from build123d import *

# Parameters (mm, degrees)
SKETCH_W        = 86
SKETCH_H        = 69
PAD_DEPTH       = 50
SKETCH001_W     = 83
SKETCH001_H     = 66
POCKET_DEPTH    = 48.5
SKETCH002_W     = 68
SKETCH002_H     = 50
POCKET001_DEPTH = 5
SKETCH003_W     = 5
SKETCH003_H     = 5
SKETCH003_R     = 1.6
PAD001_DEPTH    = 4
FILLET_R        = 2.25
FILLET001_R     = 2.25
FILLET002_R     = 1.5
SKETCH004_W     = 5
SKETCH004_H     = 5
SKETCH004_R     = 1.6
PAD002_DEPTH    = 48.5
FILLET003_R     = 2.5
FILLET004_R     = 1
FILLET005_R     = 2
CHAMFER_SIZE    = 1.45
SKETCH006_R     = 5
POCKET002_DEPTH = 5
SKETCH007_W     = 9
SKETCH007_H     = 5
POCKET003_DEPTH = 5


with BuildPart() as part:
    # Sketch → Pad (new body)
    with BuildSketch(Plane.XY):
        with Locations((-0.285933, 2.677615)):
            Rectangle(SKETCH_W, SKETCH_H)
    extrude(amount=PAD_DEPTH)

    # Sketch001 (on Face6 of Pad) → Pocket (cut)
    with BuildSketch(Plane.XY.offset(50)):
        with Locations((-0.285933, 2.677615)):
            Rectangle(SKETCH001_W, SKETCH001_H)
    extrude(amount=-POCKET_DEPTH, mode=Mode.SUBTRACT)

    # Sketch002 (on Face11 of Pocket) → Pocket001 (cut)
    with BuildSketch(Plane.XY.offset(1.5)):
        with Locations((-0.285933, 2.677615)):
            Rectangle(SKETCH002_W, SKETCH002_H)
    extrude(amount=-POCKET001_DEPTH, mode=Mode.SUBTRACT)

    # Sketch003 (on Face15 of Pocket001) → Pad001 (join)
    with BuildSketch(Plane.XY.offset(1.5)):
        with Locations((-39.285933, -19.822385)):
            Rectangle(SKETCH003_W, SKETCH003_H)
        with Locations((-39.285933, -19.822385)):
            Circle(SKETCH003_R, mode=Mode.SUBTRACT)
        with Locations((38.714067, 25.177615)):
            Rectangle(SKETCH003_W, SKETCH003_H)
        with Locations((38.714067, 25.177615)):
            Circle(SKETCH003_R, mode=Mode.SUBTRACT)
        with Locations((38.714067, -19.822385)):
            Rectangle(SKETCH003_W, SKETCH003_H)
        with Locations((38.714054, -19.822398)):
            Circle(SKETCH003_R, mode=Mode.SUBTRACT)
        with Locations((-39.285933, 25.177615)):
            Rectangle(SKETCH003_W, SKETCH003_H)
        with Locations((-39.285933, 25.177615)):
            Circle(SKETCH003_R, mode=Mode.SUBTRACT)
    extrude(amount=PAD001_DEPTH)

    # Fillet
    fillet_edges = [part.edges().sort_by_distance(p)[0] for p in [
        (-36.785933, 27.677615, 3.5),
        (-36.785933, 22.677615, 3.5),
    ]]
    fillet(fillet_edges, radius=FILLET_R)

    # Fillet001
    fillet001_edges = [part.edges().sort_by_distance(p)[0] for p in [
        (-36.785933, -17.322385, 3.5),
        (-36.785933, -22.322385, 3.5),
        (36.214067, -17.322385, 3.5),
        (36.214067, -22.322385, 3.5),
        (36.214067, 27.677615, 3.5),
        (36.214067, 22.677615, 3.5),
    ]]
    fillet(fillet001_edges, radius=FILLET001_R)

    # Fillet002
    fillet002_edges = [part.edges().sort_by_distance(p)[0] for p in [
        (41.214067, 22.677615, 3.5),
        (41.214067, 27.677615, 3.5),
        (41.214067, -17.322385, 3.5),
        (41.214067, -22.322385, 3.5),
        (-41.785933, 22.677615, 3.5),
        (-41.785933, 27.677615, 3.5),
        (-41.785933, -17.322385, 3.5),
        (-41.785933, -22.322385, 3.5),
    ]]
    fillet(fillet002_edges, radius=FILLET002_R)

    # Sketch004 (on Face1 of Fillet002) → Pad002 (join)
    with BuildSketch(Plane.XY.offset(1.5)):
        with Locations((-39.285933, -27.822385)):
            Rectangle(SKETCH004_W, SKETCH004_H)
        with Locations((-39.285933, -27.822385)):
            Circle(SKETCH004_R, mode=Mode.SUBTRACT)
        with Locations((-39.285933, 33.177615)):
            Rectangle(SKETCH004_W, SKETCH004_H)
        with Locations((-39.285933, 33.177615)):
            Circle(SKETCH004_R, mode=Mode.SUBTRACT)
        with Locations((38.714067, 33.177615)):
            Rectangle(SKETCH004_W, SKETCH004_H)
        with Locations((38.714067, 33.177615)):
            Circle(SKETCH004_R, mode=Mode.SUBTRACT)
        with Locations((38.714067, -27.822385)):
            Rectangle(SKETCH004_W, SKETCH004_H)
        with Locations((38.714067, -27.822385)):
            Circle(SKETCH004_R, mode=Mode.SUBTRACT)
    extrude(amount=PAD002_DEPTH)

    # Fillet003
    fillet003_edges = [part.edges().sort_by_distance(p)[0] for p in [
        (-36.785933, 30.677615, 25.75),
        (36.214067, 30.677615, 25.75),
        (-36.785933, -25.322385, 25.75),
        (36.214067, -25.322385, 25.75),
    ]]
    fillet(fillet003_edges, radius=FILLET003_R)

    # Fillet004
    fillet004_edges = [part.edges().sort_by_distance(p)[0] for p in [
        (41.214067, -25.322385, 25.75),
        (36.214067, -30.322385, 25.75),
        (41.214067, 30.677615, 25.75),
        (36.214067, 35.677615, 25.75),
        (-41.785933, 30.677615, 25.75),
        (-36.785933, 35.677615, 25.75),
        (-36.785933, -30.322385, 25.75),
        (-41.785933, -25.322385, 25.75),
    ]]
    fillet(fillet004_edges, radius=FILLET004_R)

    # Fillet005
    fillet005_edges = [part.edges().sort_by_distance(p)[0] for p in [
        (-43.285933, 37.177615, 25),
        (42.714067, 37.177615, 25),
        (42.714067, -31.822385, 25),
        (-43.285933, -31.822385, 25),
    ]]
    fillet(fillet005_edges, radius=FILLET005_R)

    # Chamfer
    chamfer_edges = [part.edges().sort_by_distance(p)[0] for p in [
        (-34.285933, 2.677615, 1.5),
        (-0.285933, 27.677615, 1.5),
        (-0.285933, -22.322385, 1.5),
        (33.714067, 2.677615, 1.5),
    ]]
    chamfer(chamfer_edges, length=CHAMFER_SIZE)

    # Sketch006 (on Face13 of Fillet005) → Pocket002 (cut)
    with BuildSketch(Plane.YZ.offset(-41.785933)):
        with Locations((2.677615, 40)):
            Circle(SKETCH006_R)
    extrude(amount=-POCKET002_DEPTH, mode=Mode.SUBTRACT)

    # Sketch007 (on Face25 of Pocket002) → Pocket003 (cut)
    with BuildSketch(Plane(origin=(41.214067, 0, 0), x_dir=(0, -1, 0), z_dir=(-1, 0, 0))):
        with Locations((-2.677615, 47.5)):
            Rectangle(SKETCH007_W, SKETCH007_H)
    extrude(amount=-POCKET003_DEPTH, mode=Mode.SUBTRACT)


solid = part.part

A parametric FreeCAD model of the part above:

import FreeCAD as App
import Part
import Sketcher
from FreeCAD import Vector


def edges_at(feature, points):
    """Names of the edges that pass closest to the given points."""
    edges = feature.Shape.Edges
    near = lambda p: min(range(len(edges)), key=lambda i: edges[i].distToShape(Part.Vertex(*p))[0])
    return sorted({f"Edge{near(p) + 1}" for p in points})

doc = App.newDocument("Part")
body = doc.addObject("PartDesign::Body", "Body")

# Sketch on XY plane
sketch1 = body.newObject("Sketcher::SketchObject", "Sketch")
sketch1.AttachmentSupport = (doc.getObject("XY_Plane"), [""])
sketch1.MapMode = "FlatFace"
sketch1.addGeometry([
    Part.LineSegment(Vector(-43, 37, 0), Vector(-43, -32, 0)),
    Part.LineSegment(Vector(-43, -32, 0), Vector(43, -32, 0)),
    Part.LineSegment(Vector(43, -32, 0), Vector(43, 37, 0)),
    Part.LineSegment(Vector(43, 37, 0), Vector(-43, 37, 0)),
], False)
sketch1.addConstraint([
    Sketcher.Constraint("Coincident", 0, 2, 1, 1),
    Sketcher.Constraint("Coincident", 1, 2, 2, 1),
    Sketcher.Constraint("Coincident", 2, 2, 3, 1),
    Sketcher.Constraint("Coincident", 3, 2, 0, 1),
    Sketcher.Constraint("Vertical", 0),
    Sketcher.Constraint("Horizontal", 1),
    Sketcher.Constraint("Vertical", 2),
    Sketcher.Constraint("Horizontal", 3),
    Sketcher.Constraint("DistanceX", 1, 1, 1, 2, 86.0),
    Sketcher.Constraint("DistanceY", 0, 2, 0, 1, 69.0),
    Sketcher.Constraint("DistanceX", 0, 2, -1, 1, 43.285933),
    Sketcher.Constraint("DistanceY", 0, 2, -1, 1, 31.822385),
])
pad1 = body.newObject("PartDesign::Pad", "Pad")
pad1.Profile = sketch1
pad1.Length = 50

# Sketch on XY plane
sketch2 = body.newObject("Sketcher::SketchObject", "Sketch001")
sketch2.AttachmentSupport = (doc.getObject("XY_Plane"), [""])
sketch2.MapMode = "FlatFace"
sketch2.AttachmentOffset = App.Placement(Vector(0, 0, 50), App.Rotation())
sketch2.addGeometry([
    Part.LineSegment(Vector(-42, 36, 0), Vector(-42, -30, 0)),
    Part.LineSegment(Vector(-42, -30, 0), Vector(41, -30, 0)),
    Part.LineSegment(Vector(41, -30, 0), Vector(41, 36, 0)),
    Part.LineSegment(Vector(41, 36, 0), Vector(-42, 36, 0)),
], False)
sketch2.addConstraint([
    Sketcher.Constraint("Coincident", 0, 2, 1, 1),
    Sketcher.Constraint("Coincident", 1, 2, 2, 1),
    Sketcher.Constraint("Coincident", 2, 2, 3, 1),
    Sketcher.Constraint("Coincident", 3, 2, 0, 1),
    Sketcher.Constraint("Vertical", 0),
    Sketcher.Constraint("Horizontal", 1),
    Sketcher.Constraint("Vertical", 2),
    Sketcher.Constraint("Horizontal", 3),
    Sketcher.Constraint("DistanceX", 1, 1, 1, 2, 83.0),
    Sketcher.Constraint("DistanceY", 0, 2, 0, 1, 66.0),
    Sketcher.Constraint("DistanceX", 0, 2, -1, 1, 41.785933),
    Sketcher.Constraint("DistanceY", 0, 2, -1, 1, 30.322385),
])
pocket1 = body.newObject("PartDesign::Pocket", "Pocket")
pocket1.Profile = sketch2
pocket1.Length = 48.5

# Sketch on XY plane
sketch3 = body.newObject("Sketcher::SketchObject", "Sketch002")
sketch3.AttachmentSupport = (doc.getObject("XY_Plane"), [""])
sketch3.MapMode = "FlatFace"
sketch3.AttachmentOffset = App.Placement(Vector(0, 0, 1.5), App.Rotation())
sketch3.addGeometry([
    Part.LineSegment(Vector(-34, 28, 0), Vector(-34, -22, 0)),
    Part.LineSegment(Vector(-34, -22, 0), Vector(34, -22, 0)),
    Part.LineSegment(Vector(34, -22, 0), Vector(34, 28, 0)),
    Part.LineSegment(Vector(34, 28, 0), Vector(-34, 28, 0)),
], False)
sketch3.addConstraint([
    Sketcher.Constraint("Coincident", 0, 2, 1, 1),
    Sketcher.Constraint("Coincident", 1, 2, 2, 1),
    Sketcher.Constraint("Coincident", 2, 2, 3, 1),
    Sketcher.Constraint("Coincident", 3, 2, 0, 1),
    Sketcher.Constraint("Vertical", 0),
    Sketcher.Constraint("Horizontal", 1),
    Sketcher.Constraint("Vertical", 2),
    Sketcher.Constraint("Horizontal", 3),
    Sketcher.Constraint("DistanceX", 1, 1, 1, 2, 68.0),
    Sketcher.Constraint("DistanceY", 0, 2, 0, 1, 50.0),
    Sketcher.Constraint("DistanceX", 0, 2, -1, 1, 34.285933),
    Sketcher.Constraint("DistanceY", 0, 2, -1, 1, 22.322385),
])
pocket2 = body.newObject("PartDesign::Pocket", "Pocket001")
pocket2.Profile = sketch3
pocket2.Length = 5

# Sketch on XY plane
sketch4 = body.newObject("Sketcher::SketchObject", "Sketch003")
sketch4.AttachmentSupport = (doc.getObject("XY_Plane"), [""])
sketch4.MapMode = "FlatFace"
sketch4.AttachmentOffset = App.Placement(Vector(0, 0, 1.5), App.Rotation())
sketch4.addGeometry([
    Part.LineSegment(Vector(-41.8, -17.3, 0), Vector(-41.8, -22.3, 0)),  # 0
    Part.LineSegment(Vector(-41.8, -22.3, 0), Vector(-36.8, -22.3, 0)),  # 1
    Part.LineSegment(Vector(-36.8, -22.3, 0), Vector(-36.8, -17.3, 0)),  # 2
    Part.LineSegment(Vector(-36.8, -17.3, 0), Vector(-41.8, -17.3, 0)),  # 3
    Part.Circle(Vector(-39.3, -19.8, 0), Vector(0, 0, 1), 1.6),  # 4
    Part.LineSegment(Vector(36.2, 27.7, 0), Vector(36.2, 22.7, 0)),  # 5
    Part.LineSegment(Vector(36.2, 22.7, 0), Vector(41.2, 22.7, 0)),  # 6
    Part.LineSegment(Vector(41.2, 22.7, 0), Vector(41.2, 27.7, 0)),  # 7
    Part.LineSegment(Vector(41.2, 27.7, 0), Vector(36.2, 27.7, 0)),  # 8
    Part.Circle(Vector(38.7, 25.2, 0), Vector(0, 0, 1), 1.6),  # 9
    Part.LineSegment(Vector(36.2, -17.3, 0), Vector(36.2, -22.3, 0)),  # 10
    Part.LineSegment(Vector(36.2, -22.3, 0), Vector(41.2, -22.3, 0)),  # 11
    Part.LineSegment(Vector(41.2, -22.3, 0), Vector(41.2, -17.3, 0)),  # 12
    Part.LineSegment(Vector(41.2, -17.3, 0), Vector(36.2, -17.3, 0)),  # 13
    Part.Circle(Vector(38.7, -19.8, 0), Vector(0, 0, 1), 1.6),  # 14
    Part.LineSegment(Vector(-41.8, 27.7, 0), Vector(-41.8, 22.7, 0)),  # 15
    Part.LineSegment(Vector(-41.8, 22.7, 0), Vector(-36.8, 22.7, 0)),  # 16
    Part.LineSegment(Vector(-36.8, 22.7, 0), Vector(-36.8, 27.7, 0)),  # 17
    Part.LineSegment(Vector(-36.8, 27.7, 0), Vector(-41.8, 27.7, 0)),  # 18
    Part.Circle(Vector(-39.3, 25.2, 0), Vector(0, 0, 1), 1.6),  # 19
], False)
sketch4.addConstraint([
    Sketcher.Constraint("Coincident", 0, 2, 1, 1),
    Sketcher.Constraint("Coincident", 1, 2, 2, 1),
    Sketcher.Constraint("Coincident", 2, 2, 3, 1),
    Sketcher.Constraint("Coincident", 3, 2, 0, 1),
    Sketcher.Constraint("Coincident", 5, 2, 6, 1),
    Sketcher.Constraint("Coincident", 6, 2, 7, 1),
    Sketcher.Constraint("Coincident", 7, 2, 8, 1),
    Sketcher.Constraint("Coincident", 8, 2, 5, 1),
    Sketcher.Constraint("Coincident", 10, 2, 11, 1),
    Sketcher.Constraint("Coincident", 11, 2, 12, 1),
    Sketcher.Constraint("Coincident", 12, 2, 13, 1),
    Sketcher.Constraint("Coincident", 13, 2, 10, 1),
    Sketcher.Constraint("Coincident", 15, 2, 16, 1),
    Sketcher.Constraint("Coincident", 16, 2, 17, 1),
    Sketcher.Constraint("Coincident", 17, 2, 18, 1),
    Sketcher.Constraint("Coincident", 18, 2, 15, 1),
    Sketcher.Constraint("Vertical", 0),
    Sketcher.Constraint("Horizontal", 1),
    Sketcher.Constraint("Vertical", 2),
    Sketcher.Constraint("Horizontal", 3),
    Sketcher.Constraint("Vertical", 5),
    Sketcher.Constraint("Horizontal", 6),
    Sketcher.Constraint("Vertical", 7),
    Sketcher.Constraint("Horizontal", 8),
    Sketcher.Constraint("Vertical", 10),
    Sketcher.Constraint("Horizontal", 11),
    Sketcher.Constraint("Vertical", 12),
    Sketcher.Constraint("Horizontal", 13),
    Sketcher.Constraint("Vertical", 15),
    Sketcher.Constraint("Horizontal", 16),
    Sketcher.Constraint("Vertical", 17),
    Sketcher.Constraint("Horizontal", 18),
    Sketcher.Constraint("Equal", 4, 9),
    Sketcher.Constraint("Equal", 9, 14),
    Sketcher.Constraint("Equal", 14, 19),
    Sketcher.Constraint("Horizontal", 9, 3, 19, 3),
    Sketcher.Constraint("Horizontal", 1, 2, 10, 2),
    Sketcher.Constraint("Horizontal", 3, 2, 12, 2),
    Sketcher.Constraint("Horizontal", 6, 2, 15, 2),
    Sketcher.Constraint("Horizontal", 8, 2, 17, 2),
    Sketcher.Constraint("Vertical", 4, 3, 19, 3),
    Sketcher.Constraint("Vertical", 8, 2, 10, 2),
    Sketcher.Constraint("Vertical", 7, 2, 11, 2),
    Sketcher.Constraint("Vertical", 3, 2, 15, 2),
    Sketcher.Constraint("Vertical", 2, 2, 16, 2),
    Sketcher.Constraint("Equal", 3, 6),
    Sketcher.Constraint("Equal", 18, 0),
    Sketcher.Constraint("Equal", 2, 5),
    Sketcher.Constraint("Diameter", 4, 3.2),
    Sketcher.Constraint("DistanceX", 1, 1, 1, 2, 5.0),
    Sketcher.Constraint("DistanceX", 4, 3, 9, 3, 78.0),
    Sketcher.Constraint("DistanceY", 4, 3, 9, 3, 45.0),
    Sketcher.Constraint("DistanceX", 2, 2, 5, 2, 73.0),
    Sketcher.Constraint("DistanceY", 2, 2, 5, 2, 40.0),
    Sketcher.Constraint("DistanceX", 0, 2, 4, 3, 2.5),
    Sketcher.Constraint("DistanceY", 0, 2, 4, 3, 2.5),
    Sketcher.Constraint("DistanceY", 14, 3, -1, 1, 19.822398),
    Sketcher.Constraint("DistanceX", 4, 3, -1, 1, 39.285933),
    Sketcher.Constraint("DistanceY", 4, 3, -1, 1, 19.822385),
    Sketcher.Constraint("DistanceX", -1, 1, 14, 3, 38.714054),
])
pad2 = body.newObject("PartDesign::Pad", "Pad001")
pad2.Profile = sketch4
pad2.Length = 4
doc.recompute()

fillet = body.newObject("PartDesign::Fillet", "Fillet")
fillet.Base = (pad2, edges_at(pad2, [(-36.786, 27.678, 3.5), (-36.786, 22.678, 3.5)]))
fillet.Radius = 2.25
doc.recompute()

fillet2 = body.newObject("PartDesign::Fillet", "Fillet001")
fillet2.Base = (fillet, edges_at(fillet, [
    (-36.786, -17.322, 3.5),
    (-36.786, -22.322, 3.5),
    (36.214, -17.322, 3.5),
    (36.214, -22.322, 3.5),
    (36.214, 27.678, 3.5),
    (36.214, 22.678, 3.5),
]))
fillet2.Radius = 2.25
doc.recompute()

fillet3 = body.newObject("PartDesign::Fillet", "Fillet002")
fillet3.Base = (fillet2, edges_at(fillet2, [
    (41.214, 22.678, 3.5),
    (41.214, 27.678, 3.5),
    (41.214, -17.322, 3.5),
    (41.214, -22.322, 3.5),
    (-41.786, 22.678, 3.5),
    (-41.786, 27.678, 3.5),
    (-41.786, -17.322, 3.5),
    (-41.786, -22.322, 3.5),
]))
fillet3.Radius = 1.5

# Sketch on XY plane
sketch5 = body.newObject("Sketcher::SketchObject", "Sketch004")
sketch5.AttachmentSupport = (doc.getObject("XY_Plane"), [""])
sketch5.MapMode = "FlatFace"
sketch5.AttachmentOffset = App.Placement(Vector(0, 0, 1.5), App.Rotation())
sketch5.addGeometry([
    Part.LineSegment(Vector(-41.8, -25.3, 0), Vector(-41.8, -30.3, 0)),  # 0
    Part.LineSegment(Vector(-41.8, -30.3, 0), Vector(-36.8, -30.3, 0)),  # 1
    Part.LineSegment(Vector(-36.8, -30.3, 0), Vector(-36.8, -25.3, 0)),  # 2
    Part.LineSegment(Vector(-36.8, -25.3, 0), Vector(-41.8, -25.3, 0)),  # 3
    Part.Circle(Vector(-39.3, -27.8, 0), Vector(0, 0, 1), 1.6),  # 4
    Part.LineSegment(Vector(-41.8, 35.7, 0), Vector(-41.8, 30.7, 0)),  # 5
    Part.LineSegment(Vector(-41.8, 30.7, 0), Vector(-36.8, 30.7, 0)),  # 6
    Part.LineSegment(Vector(-36.8, 30.7, 0), Vector(-36.8, 35.7, 0)),  # 7
    Part.LineSegment(Vector(-36.8, 35.7, 0), Vector(-41.8, 35.7, 0)),  # 8
    Part.Circle(Vector(-39.3, 33.2, 0), Vector(0, 0, 1), 1.6),  # 9
    Part.LineSegment(Vector(36.2, 35.7, 0), Vector(36.2, 30.7, 0)),  # 10
    Part.LineSegment(Vector(36.2, 30.7, 0), Vector(41.2, 30.7, 0)),  # 11
    Part.LineSegment(Vector(41.2, 30.7, 0), Vector(41.2, 35.7, 0)),  # 12
    Part.LineSegment(Vector(41.2, 35.7, 0), Vector(36.2, 35.7, 0)),  # 13
    Part.Circle(Vector(38.7, 33.2, 0), Vector(0, 0, 1), 1.6),  # 14
    Part.LineSegment(Vector(36.2, -25.3, 0), Vector(36.2, -30.3, 0)),  # 15
    Part.LineSegment(Vector(36.2, -30.3, 0), Vector(41.2, -30.3, 0)),  # 16
    Part.LineSegment(Vector(41.2, -30.3, 0), Vector(41.2, -25.3, 0)),  # 17
    Part.LineSegment(Vector(41.2, -25.3, 0), Vector(36.2, -25.3, 0)),  # 18
    Part.Circle(Vector(38.7, -27.8, 0), Vector(0, 0, 1), 1.6),  # 19
], False)
sketch5.addConstraint([
    Sketcher.Constraint("Coincident", 0, 2, 1, 1),
    Sketcher.Constraint("Coincident", 1, 2, 2, 1),
    Sketcher.Constraint("Coincident", 2, 2, 3, 1),
    Sketcher.Constraint("Coincident", 3, 2, 0, 1),
    Sketcher.Constraint("Coincident", 5, 2, 6, 1),
    Sketcher.Constraint("Coincident", 6, 2, 7, 1),
    Sketcher.Constraint("Coincident", 7, 2, 8, 1),
    Sketcher.Constraint("Coincident", 8, 2, 5, 1),
    Sketcher.Constraint("Coincident", 10, 2, 11, 1),
    Sketcher.Constraint("Coincident", 11, 2, 12, 1),
    Sketcher.Constraint("Coincident", 12, 2, 13, 1),
    Sketcher.Constraint("Coincident", 13, 2, 10, 1),
    Sketcher.Constraint("Coincident", 15, 2, 16, 1),
    Sketcher.Constraint("Coincident", 16, 2, 17, 1),
    Sketcher.Constraint("Coincident", 17, 2, 18, 1),
    Sketcher.Constraint("Coincident", 18, 2, 15, 1),
    Sketcher.Constraint("Vertical", 0),
    Sketcher.Constraint("Horizontal", 1),
    Sketcher.Constraint("Vertical", 2),
    Sketcher.Constraint("Horizontal", 3),
    Sketcher.Constraint("Vertical", 5),
    Sketcher.Constraint("Horizontal", 6),
    Sketcher.Constraint("Vertical", 7),
    Sketcher.Constraint("Horizontal", 8),
    Sketcher.Constraint("Vertical", 10),
    Sketcher.Constraint("Horizontal", 11),
    Sketcher.Constraint("Vertical", 12),
    Sketcher.Constraint("Horizontal", 13),
    Sketcher.Constraint("Vertical", 15),
    Sketcher.Constraint("Horizontal", 16),
    Sketcher.Constraint("Vertical", 17),
    Sketcher.Constraint("Horizontal", 18),
    Sketcher.Constraint("Equal", 4, 9),
    Sketcher.Constraint("Equal", 9, 14),
    Sketcher.Constraint("Equal", 14, 19),
    Sketcher.Constraint("Horizontal", 9, 3, 14, 3),
    Sketcher.Constraint("Horizontal", 4, 3, 19, 3),
    Sketcher.Constraint("Horizontal", 6, 2, 10, 2),
    Sketcher.Constraint("Horizontal", 8, 2, 12, 2),
    Sketcher.Constraint("Horizontal", 1, 2, 15, 2),
    Sketcher.Constraint("Horizontal", 3, 2, 17, 2),
    Sketcher.Constraint("Vertical", 4, 3, 9, 3),
    Sketcher.Constraint("Vertical", 14, 3, 19, 3),
    Sketcher.Constraint("Vertical", 3, 2, 5, 2),
    Sketcher.Constraint("Vertical", 2, 2, 6, 2),
    Sketcher.Constraint("Vertical", 13, 2, 15, 2),
    Sketcher.Constraint("Vertical", 12, 2, 16, 2),
    Sketcher.Constraint("Equal", 8, 11),
    Sketcher.Constraint("Equal", 18, 0),
    Sketcher.Constraint("Equal", 2, 5),
    Sketcher.Constraint("Diameter", 4, 3.2),
    Sketcher.Constraint("DistanceX", 1, 1, 1, 2, 5.0),
    Sketcher.Constraint("DistanceY", 4, 3, 9, 3, 61.0),
    Sketcher.Constraint("DistanceX", 9, 3, 14, 3, 78.0),
    Sketcher.Constraint("DistanceY", 3, 2, 5, 2, 56.0),
    Sketcher.Constraint("DistanceX", 6, 2, 10, 2, 73.0),
    Sketcher.Constraint("DistanceX", 0, 2, 4, 3, 2.5),
    Sketcher.Constraint("DistanceY", 0, 2, 4, 3, 2.5),
    Sketcher.Constraint("DistanceX", 4, 3, -1, 1, 39.285933),
    Sketcher.Constraint("DistanceY", 4, 3, -1, 1, 27.822385),
])
pad3 = body.newObject("PartDesign::Pad", "Pad002")
pad3.Profile = sketch5
pad3.Length = 48.5
doc.recompute()

fillet4 = body.newObject("PartDesign::Fillet", "Fillet003")
fillet4.Base = (pad3, edges_at(pad3, [
    (-36.786, 30.678, 25.75),
    (36.214, 30.678, 25.75),
    (-36.786, -25.322, 25.75),
    (36.214, -25.322, 25.75),
]))
fillet4.Radius = 2.5
doc.recompute()

fillet5 = body.newObject("PartDesign::Fillet", "Fillet004")
fillet5.Base = (fillet4, edges_at(fillet4, [
    (41.214, -25.322, 25.75),
    (36.214, -30.322, 25.75),
    (41.214, 30.678, 25.75),
    (36.214, 35.678, 25.75),
    (-41.786, 30.678, 25.75),
    (-36.786, 35.678, 25.75),
    (-36.786, -30.322, 25.75),
    (-41.786, -25.322, 25.75),
]))
fillet5.Radius = 1
doc.recompute()

fillet6 = body.newObject("PartDesign::Fillet", "Fillet005")
fillet6.Base = (fillet5, edges_at(fillet5, [
    (-43.286, 37.178, 25),
    (42.714, 37.178, 25),
    (42.714, -31.822, 25),
    (-43.286, -31.822, 25),
]))
fillet6.Radius = 2
doc.recompute()

chamfer = body.newObject("PartDesign::Chamfer", "Chamfer")
chamfer.Base = (fillet6, edges_at(fillet6, [
    (-34.286, 2.678, 1.5),
    (-0.286, 27.678, 1.5),
    (-0.286, -22.322, 1.5),
    (33.714, 2.678, 1.5),
]))
chamfer.Size = 1.45

# Sketch on YZ plane
sketch6 = body.newObject("Sketcher::SketchObject", "Sketch005")
sketch6.AttachmentSupport = (doc.getObject("YZ_Plane"), [""])
sketch6.MapMode = "FlatFace"
sketch6.AttachmentOffset = App.Placement(Vector(0, 0, -41.785933), App.Rotation())
sketch6.addGeometry(Part.Circle(Vector(3, 40, 0), Vector(0, 0, 1), 5), False)
sketch6.addConstraint([
    Sketcher.Constraint("Diameter", 0, 10.0),
    Sketcher.Constraint("DistanceY", -1, 1, 0, 3, 40.0),
    Sketcher.Constraint("DistanceX", -1, 1, 0, 3, 2.677615),
])
pocket3 = body.newObject("PartDesign::Pocket", "Pocket002")
pocket3.Profile = sketch6
pocket3.Length = 5

# Sketch on YZ plane
sketch7 = body.newObject("Sketcher::SketchObject", "Sketch006")
sketch7.AttachmentSupport = (doc.getObject("YZ_Plane"), [""])
sketch7.MapMode = "FlatFace"
sketch7.AttachmentOffset = App.Placement(Vector(0, 0, 41.214067), App.Rotation())
sketch7.addGeometry([
    Part.LineSegment(Vector(7, 50, 0), Vector(7, 45, 0)),
    Part.LineSegment(Vector(7, 45, 0), Vector(-2, 45, 0)),
    Part.LineSegment(Vector(-2, 45, 0), Vector(-2, 50, 0)),
    Part.LineSegment(Vector(-2, 50, 0), Vector(7, 50, 0)),
], False)
sketch7.addConstraint([
    Sketcher.Constraint("Coincident", 0, 2, 1, 1),
    Sketcher.Constraint("Coincident", 1, 2, 2, 1),
    Sketcher.Constraint("Coincident", 2, 2, 3, 1),
    Sketcher.Constraint("Coincident", 3, 2, 0, 1),
    Sketcher.Constraint("Vertical", 0),
    Sketcher.Constraint("Horizontal", 1),
    Sketcher.Constraint("Vertical", 2),
    Sketcher.Constraint("Horizontal", 3),
    Sketcher.Constraint("DistanceX", 1, 2, 1, 1, 9.0),
    Sketcher.Constraint("DistanceY", 0, 2, 0, 1, 5.0),
    Sketcher.Constraint("DistanceY", -1, 1, 0, 2, 45.0),
    Sketcher.Constraint("DistanceX", -1, 1, 0, 2, 7.177615),
])
pocket4 = body.newObject("PartDesign::Pocket", "Pocket003")
pocket4.Profile = sketch7
pocket4.Length = 5
pocket4.Reversed = True

doc.recompute()
